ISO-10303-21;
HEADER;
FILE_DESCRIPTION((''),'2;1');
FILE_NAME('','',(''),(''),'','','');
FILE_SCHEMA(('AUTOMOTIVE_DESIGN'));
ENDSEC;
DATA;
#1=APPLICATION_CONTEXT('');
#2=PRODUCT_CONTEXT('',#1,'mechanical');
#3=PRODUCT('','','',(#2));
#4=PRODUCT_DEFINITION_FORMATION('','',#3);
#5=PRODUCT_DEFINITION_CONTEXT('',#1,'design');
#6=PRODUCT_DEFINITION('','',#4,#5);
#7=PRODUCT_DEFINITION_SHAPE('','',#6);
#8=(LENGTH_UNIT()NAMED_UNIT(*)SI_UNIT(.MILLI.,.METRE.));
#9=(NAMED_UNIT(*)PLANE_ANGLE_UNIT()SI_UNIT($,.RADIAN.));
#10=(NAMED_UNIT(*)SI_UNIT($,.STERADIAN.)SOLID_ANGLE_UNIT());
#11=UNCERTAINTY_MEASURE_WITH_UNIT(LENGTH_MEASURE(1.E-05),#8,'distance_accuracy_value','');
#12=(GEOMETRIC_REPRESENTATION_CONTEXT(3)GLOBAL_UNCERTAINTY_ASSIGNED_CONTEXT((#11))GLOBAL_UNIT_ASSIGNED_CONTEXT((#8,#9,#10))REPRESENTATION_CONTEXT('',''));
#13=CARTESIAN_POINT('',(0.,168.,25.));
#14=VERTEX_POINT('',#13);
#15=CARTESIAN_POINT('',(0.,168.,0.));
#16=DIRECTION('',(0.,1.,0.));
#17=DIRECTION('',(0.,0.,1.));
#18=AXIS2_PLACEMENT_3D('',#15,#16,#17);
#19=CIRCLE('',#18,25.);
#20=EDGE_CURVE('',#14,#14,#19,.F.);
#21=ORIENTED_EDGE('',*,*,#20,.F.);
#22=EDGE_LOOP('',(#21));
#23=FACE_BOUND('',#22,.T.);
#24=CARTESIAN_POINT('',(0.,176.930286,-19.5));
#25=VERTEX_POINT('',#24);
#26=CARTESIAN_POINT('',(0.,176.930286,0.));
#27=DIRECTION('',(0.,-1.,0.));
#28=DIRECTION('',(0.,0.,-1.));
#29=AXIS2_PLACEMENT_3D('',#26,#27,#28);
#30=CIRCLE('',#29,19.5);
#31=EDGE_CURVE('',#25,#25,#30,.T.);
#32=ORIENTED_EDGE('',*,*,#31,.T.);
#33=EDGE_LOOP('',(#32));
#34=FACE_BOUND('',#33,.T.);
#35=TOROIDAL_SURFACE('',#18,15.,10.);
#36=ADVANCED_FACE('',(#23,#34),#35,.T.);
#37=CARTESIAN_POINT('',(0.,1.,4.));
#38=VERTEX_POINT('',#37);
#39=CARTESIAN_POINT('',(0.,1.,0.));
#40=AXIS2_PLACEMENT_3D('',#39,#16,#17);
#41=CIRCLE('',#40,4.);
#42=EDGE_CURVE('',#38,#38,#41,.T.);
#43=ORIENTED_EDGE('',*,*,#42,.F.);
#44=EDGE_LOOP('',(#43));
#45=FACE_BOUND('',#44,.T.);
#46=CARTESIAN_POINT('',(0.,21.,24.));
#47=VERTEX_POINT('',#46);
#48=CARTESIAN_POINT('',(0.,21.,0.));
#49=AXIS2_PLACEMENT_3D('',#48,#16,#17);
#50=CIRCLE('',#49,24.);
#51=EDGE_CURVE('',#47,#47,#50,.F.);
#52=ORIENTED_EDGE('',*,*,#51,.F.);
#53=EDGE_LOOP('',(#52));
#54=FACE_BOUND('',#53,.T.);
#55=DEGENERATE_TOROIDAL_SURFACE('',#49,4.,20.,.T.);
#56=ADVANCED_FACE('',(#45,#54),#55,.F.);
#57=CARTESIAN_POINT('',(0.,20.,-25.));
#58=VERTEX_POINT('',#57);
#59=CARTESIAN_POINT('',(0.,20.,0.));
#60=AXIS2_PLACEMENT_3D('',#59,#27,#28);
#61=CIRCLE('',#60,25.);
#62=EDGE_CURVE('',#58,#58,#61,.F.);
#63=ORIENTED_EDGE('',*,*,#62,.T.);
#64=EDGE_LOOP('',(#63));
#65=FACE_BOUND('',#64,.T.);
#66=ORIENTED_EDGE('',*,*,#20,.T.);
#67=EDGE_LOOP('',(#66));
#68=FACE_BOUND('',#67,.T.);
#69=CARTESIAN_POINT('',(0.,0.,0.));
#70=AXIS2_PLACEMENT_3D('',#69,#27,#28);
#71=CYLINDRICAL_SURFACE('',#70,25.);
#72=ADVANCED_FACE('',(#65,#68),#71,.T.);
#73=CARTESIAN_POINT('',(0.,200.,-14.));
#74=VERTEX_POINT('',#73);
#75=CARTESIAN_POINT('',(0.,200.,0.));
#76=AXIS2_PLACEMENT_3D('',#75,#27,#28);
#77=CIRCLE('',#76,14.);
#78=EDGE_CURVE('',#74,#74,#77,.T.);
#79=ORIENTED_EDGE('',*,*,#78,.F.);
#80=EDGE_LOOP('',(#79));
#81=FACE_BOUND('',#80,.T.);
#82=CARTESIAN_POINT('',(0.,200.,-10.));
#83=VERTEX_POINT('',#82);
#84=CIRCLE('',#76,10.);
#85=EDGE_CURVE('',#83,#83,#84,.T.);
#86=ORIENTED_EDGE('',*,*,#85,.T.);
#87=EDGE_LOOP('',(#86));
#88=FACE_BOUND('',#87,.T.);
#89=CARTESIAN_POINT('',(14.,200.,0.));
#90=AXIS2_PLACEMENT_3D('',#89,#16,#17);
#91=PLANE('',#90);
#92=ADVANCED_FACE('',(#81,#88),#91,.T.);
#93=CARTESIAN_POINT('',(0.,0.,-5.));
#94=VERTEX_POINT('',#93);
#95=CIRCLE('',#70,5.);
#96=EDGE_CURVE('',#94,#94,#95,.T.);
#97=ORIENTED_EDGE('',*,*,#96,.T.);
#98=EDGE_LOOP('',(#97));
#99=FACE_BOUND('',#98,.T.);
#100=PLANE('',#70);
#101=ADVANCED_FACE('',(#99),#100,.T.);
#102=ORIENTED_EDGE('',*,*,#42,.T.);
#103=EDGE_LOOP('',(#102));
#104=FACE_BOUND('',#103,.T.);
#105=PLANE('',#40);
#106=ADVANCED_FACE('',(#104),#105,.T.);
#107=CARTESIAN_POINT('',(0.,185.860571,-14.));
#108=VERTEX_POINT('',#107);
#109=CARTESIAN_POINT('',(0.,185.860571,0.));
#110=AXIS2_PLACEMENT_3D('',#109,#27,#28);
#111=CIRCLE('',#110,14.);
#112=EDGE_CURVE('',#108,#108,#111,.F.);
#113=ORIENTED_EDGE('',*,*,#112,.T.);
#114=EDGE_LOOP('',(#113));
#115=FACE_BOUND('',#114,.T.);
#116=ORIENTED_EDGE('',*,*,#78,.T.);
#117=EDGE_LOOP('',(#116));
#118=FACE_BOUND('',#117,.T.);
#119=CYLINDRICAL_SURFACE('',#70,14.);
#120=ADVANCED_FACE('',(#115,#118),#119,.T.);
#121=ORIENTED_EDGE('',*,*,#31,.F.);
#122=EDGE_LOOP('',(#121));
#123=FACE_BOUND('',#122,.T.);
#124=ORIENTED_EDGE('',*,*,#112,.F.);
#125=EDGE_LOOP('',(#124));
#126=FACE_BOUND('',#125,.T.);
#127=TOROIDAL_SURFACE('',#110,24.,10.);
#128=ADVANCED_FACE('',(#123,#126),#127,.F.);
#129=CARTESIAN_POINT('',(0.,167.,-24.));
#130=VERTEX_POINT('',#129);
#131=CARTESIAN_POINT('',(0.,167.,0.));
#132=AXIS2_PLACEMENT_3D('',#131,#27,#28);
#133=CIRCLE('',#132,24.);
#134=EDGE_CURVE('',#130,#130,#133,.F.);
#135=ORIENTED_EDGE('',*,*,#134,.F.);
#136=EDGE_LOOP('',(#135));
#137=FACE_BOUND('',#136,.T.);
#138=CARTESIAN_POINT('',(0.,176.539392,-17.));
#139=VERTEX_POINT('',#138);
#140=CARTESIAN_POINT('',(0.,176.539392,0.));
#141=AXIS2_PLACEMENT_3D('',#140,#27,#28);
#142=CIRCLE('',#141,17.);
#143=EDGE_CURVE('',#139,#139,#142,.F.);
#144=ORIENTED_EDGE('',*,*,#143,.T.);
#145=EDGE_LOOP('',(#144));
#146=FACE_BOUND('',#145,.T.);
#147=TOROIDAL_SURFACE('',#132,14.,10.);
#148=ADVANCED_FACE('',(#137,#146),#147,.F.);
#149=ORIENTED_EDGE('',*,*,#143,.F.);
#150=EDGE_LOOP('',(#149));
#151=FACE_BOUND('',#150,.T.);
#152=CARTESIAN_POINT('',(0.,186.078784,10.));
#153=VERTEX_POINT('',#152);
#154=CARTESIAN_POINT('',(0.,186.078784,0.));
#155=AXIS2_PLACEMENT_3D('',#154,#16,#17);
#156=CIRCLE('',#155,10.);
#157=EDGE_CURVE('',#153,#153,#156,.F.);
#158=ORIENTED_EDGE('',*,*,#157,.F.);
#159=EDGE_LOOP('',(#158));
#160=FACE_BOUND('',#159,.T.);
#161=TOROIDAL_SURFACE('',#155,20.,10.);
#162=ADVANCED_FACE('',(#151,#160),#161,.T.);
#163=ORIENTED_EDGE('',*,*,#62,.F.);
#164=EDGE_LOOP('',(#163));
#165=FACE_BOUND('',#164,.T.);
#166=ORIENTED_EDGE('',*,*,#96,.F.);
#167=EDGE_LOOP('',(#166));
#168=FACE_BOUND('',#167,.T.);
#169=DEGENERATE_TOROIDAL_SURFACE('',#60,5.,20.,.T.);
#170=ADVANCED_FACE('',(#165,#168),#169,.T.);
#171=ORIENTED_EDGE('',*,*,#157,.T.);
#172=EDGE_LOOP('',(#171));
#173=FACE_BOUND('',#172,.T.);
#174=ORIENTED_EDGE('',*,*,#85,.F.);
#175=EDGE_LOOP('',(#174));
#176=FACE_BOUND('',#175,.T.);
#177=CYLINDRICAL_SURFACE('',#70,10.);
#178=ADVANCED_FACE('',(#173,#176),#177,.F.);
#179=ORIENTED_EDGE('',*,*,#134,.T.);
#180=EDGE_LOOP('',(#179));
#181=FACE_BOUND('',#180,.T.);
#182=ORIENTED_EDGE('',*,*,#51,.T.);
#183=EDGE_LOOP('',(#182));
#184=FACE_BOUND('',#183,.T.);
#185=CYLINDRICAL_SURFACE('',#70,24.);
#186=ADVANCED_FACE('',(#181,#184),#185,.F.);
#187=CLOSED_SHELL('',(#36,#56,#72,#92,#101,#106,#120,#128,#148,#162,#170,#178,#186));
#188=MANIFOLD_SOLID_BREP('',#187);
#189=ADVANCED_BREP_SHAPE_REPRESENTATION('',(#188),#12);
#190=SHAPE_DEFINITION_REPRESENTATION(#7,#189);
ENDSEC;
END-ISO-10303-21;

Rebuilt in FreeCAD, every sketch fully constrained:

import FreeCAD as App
import Part
import Sketcher
from FreeCAD import Vector


def edges_at(feature, points):
    """Names of the edges that pass closest to the given points."""
    edges = feature.Shape.Edges
    near = lambda p: min(range(len(edges)), key=lambda i: edges[i].distToShape(Part.Vertex(*p))[0])
    return sorted({f"Edge{near(p) + 1}" for p in points})

doc = App.newDocument("Part")
body = doc.addObject("PartDesign::Body", "Body")

# Sketch on XY plane
sketch1 = body.newObject("Sketcher::SketchObject", "Sketch")
sketch1.AttachmentSupport = (doc.getObject("XY_Plane"), [""])
sketch1.MapMode = "FlatFace"
sketch1.addGeometry([
    Part.LineSegment(Vector(0, 0, 0), Vector(25, 0, 0)),  # 0
    Part.LineSegment(Vector(25, 0, 0), Vector(25, 178, 0)),  # 1
    Part.LineSegment(Vector(25, 178, 0), Vector(14, 178, 0)),  # 2
    Part.LineSegment(Vector(14, 178, 0), Vector(14, 200, 0)),  # 3
    Part.LineSegment(Vector(14, 200, 0), Vector(10, 200, 0)),  # 4
    Part.LineSegment(Vector(10, 200, 0), Vector(10, 177, 0)),  # 5
    Part.LineSegment(Vector(10, 177, 0), Vector(24, 177, 0)),  # 6
    Part.LineSegment(Vector(24, 177, 0), Vector(24, 1, 0)),  # 7
    Part.LineSegment(Vector(24, 1, 0), Vector(0, 1, 0)),  # 8
    Part.LineSegment(Vector(0, 1, 0), Vector(0, 0, 0)),  # 9
], False)
sketch1.addConstraint([
    Sketcher.Constraint("Coincident", 0, 2, 1, 1),
    Sketcher.Constraint("Coincident", 1, 2, 2, 1),
    Sketcher.Constraint("Coincident", 2, 2, 3, 1),
    Sketcher.Constraint("Coincident", 3, 2, 4, 1),
    Sketcher.Constraint("Coincident", 4, 2, 5, 1),
    Sketcher.Constraint("Coincident", 5, 2, 6, 1),
    Sketcher.Constraint("Coincident", 6, 2, 7, 1),
    Sketcher.Constraint("Coincident", 7, 2, 8, 1),
    Sketcher.Constraint("Coincident", 8, 2, 9, 1),
    Sketcher.Constraint("Coincident", 9, 2, 0, 1),
    Sketcher.Constraint("Horizontal", 0),
    Sketcher.Constraint("Vertical", 1),
    Sketcher.Constraint("Horizontal", 2),
    Sketcher.Constraint("Vertical", 3),
    Sketcher.Constraint("Horizontal", 4),
    Sketcher.Constraint("Vertical", 5),
    Sketcher.Constraint("Horizontal", 6),
    Sketcher.Constraint("Vertical", 7),
    Sketcher.Constraint("Horizontal", 8),
    Sketcher.Constraint("Vertical", 9),
    Sketcher.Constraint("Coincident", 9, 2, -1, 1),
    Sketcher.Constraint("DistanceX", 0, 1, 0, 2, 25.0),
    Sketcher.Constraint("DistanceX", 2, 2, 2, 1, 11.0),
    Sketcher.Constraint("DistanceX", 4, 2, 4, 1, 4.0),
    Sketcher.Constraint("DistanceX", 6, 1, 6, 2, 14.0),
    Sketcher.Constraint("DistanceY", 1, 1, 1, 2, 178.0),
    Sketcher.Constraint("DistanceY", 3, 1, 3, 2, 22.0),
    Sketcher.Constraint("DistanceY", 5, 2, 5, 1, 23.0),
    Sketcher.Constraint("DistanceY", 7, 2, 7, 1, 176.0),
])
revolution = body.newObject("PartDesign::Revolution", "Revolution")
revolution.Profile = sketch1
revolution.ReferenceAxis = (sketch1, ["V_Axis"])
revolution.Angle = 360
doc.recompute()

fillet = body.newObject("PartDesign::Fillet", "Fillet")
fillet.Base = (revolution, edges_at(revolution, [(-25, 0, 0), (-24, 1, 0)]))
fillet.Radius = 20
doc.recompute()

fillet2 = body.newObject("PartDesign::Fillet", "Fillet001")
fillet2.Base = (fillet, edges_at(fillet, [(-25, 178, 0), (-24, 177, 0)]))
fillet2.Radius = 10
doc.recompute()

fillet3 = body.newObject("PartDesign::Fillet", "Fillet002")
fillet3.Base = (fillet2, edges_at(fillet2, [(-14, 178, 0), (-10, 177, 0)]))
fillet3.Radius = 10

doc.recompute()
